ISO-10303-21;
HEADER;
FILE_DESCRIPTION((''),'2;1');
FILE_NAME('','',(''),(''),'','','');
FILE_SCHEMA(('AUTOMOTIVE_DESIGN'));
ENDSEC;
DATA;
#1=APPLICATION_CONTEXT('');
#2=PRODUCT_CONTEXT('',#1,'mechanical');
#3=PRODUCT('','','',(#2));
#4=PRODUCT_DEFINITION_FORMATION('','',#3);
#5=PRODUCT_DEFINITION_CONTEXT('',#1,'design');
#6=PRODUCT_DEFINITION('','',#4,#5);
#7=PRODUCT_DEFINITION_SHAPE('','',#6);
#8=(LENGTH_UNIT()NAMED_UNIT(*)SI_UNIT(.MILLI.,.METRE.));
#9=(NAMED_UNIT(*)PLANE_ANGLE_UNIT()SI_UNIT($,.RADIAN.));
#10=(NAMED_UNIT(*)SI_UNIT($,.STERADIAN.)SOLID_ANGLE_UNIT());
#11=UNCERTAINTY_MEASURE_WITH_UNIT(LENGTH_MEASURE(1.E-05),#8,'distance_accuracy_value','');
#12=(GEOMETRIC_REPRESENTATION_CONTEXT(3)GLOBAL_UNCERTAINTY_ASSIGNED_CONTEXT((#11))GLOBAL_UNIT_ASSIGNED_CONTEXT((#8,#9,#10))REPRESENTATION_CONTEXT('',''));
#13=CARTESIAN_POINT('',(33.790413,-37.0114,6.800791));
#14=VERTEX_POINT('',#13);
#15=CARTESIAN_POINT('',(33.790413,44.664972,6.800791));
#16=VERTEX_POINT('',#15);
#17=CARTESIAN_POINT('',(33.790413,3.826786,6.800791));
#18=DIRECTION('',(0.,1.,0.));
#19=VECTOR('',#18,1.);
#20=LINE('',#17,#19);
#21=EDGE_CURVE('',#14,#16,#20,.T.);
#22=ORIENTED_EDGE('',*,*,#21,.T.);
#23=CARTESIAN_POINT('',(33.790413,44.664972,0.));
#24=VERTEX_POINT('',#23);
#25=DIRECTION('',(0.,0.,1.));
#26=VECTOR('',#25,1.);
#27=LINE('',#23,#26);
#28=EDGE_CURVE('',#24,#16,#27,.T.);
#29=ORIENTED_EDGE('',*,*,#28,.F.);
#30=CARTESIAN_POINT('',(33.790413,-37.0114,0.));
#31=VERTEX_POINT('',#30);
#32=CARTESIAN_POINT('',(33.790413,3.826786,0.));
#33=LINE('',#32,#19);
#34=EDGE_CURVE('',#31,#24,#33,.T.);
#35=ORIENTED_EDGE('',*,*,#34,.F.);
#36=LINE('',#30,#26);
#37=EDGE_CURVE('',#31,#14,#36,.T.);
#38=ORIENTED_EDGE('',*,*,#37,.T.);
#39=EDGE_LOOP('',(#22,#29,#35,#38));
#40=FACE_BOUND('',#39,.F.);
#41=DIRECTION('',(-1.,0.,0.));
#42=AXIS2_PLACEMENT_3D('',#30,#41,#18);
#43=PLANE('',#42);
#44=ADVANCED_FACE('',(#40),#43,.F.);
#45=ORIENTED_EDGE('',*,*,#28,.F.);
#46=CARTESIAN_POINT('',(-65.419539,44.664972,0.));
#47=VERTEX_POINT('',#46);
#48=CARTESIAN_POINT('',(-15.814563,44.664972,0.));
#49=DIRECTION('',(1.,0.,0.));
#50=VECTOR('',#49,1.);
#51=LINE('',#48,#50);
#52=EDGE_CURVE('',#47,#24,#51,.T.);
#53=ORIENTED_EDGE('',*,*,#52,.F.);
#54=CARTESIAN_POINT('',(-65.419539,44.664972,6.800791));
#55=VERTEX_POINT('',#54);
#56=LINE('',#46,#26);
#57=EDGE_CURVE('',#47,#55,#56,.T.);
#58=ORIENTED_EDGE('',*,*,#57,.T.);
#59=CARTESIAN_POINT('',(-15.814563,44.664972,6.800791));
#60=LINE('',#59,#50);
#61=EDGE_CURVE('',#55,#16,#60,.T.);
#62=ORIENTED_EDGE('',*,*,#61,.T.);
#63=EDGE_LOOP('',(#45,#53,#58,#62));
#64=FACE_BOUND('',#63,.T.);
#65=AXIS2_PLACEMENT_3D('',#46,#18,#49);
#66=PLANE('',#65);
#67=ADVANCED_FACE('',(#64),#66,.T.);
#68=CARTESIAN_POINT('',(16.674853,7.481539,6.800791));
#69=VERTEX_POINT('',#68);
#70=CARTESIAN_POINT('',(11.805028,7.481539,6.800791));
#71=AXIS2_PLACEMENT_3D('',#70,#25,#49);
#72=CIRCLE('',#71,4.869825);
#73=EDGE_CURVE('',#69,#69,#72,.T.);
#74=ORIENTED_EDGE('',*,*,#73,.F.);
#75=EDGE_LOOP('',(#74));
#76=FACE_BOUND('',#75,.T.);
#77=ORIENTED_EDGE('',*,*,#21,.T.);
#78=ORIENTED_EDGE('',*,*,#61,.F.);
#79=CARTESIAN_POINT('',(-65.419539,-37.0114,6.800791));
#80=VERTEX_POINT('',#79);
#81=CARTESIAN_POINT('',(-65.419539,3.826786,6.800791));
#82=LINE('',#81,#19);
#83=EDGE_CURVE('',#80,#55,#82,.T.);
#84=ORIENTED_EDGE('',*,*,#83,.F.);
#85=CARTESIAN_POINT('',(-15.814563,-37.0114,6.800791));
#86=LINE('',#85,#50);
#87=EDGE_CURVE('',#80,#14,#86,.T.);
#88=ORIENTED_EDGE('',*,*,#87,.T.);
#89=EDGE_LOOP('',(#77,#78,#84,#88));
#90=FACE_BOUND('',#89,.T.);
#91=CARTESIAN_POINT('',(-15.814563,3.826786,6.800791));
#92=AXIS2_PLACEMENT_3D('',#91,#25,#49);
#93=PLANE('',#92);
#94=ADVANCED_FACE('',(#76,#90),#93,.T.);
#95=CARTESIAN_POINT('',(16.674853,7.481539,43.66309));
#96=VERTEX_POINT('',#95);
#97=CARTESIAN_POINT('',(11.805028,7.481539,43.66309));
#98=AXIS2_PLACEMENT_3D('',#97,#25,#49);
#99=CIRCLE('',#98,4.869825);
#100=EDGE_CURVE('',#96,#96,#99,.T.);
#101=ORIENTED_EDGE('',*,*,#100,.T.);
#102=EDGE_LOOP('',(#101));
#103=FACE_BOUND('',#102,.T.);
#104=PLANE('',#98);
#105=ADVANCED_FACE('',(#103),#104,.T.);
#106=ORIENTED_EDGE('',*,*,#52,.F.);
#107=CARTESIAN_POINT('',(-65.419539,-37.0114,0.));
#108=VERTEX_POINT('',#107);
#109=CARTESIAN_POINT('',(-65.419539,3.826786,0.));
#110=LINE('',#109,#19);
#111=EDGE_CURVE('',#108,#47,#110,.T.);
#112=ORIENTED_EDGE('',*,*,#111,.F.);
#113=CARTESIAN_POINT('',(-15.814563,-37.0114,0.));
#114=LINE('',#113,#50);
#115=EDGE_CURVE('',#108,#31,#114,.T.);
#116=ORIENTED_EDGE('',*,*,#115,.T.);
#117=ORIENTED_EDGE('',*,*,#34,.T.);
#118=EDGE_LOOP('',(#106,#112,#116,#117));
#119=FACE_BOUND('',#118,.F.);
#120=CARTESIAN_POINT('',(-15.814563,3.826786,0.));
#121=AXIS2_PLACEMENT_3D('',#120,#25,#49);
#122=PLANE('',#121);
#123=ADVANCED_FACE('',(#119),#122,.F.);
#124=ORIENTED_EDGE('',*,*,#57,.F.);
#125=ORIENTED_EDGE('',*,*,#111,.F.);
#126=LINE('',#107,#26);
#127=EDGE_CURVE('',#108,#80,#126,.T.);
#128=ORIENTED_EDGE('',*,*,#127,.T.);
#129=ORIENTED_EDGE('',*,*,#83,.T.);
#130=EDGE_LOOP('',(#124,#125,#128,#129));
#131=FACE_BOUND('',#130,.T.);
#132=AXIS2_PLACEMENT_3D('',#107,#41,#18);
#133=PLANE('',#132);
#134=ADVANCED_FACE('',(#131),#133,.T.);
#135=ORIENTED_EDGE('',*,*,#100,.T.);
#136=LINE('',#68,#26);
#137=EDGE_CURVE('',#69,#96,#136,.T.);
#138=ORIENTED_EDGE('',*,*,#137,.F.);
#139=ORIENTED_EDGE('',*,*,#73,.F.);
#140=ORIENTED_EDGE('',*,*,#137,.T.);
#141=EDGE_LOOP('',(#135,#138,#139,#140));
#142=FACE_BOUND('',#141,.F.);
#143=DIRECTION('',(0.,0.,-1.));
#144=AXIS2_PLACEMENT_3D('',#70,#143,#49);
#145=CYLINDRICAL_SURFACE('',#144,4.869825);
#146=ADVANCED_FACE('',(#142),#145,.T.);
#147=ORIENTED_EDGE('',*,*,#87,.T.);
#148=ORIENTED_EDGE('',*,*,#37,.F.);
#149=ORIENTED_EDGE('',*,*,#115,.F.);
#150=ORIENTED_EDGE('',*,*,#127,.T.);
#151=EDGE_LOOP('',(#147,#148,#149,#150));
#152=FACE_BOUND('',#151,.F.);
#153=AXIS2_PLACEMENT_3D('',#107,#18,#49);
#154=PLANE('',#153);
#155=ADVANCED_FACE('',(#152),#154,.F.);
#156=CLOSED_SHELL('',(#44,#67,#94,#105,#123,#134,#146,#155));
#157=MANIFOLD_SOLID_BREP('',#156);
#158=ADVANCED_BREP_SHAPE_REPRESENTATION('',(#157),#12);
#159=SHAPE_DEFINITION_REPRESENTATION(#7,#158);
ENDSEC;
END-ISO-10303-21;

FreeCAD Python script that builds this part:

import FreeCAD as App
import Part
import Sketcher
from FreeCAD import Vector
Q = App.Units.Quantity

doc = App.newDocument("Part")
body = doc.addObject("PartDesign::Body", "Body")

# Sketch on XY plane
sketch1 = doc.addObject("Sketcher::SketchObject", "Sketch")
body.addObject(sketch1)
sketch1.AttachmentSupport = (doc.XY_Plane, [""])
sketch1.MapMode = "FlatFace"
sketch1.addGeometry(Part.LineSegment(Vector(-65, 45, 0), Vector(-65, -37, 0)), False)
sketch1.addGeometry(Part.LineSegment(Vector(-65, -37, 0), Vector(34, -37, 0)), False)
sketch1.addGeometry(Part.LineSegment(Vector(34, -37, 0), Vector(34, 45, 0)), False)
sketch1.addGeometry(Part.LineSegment(Vector(34, 45, 0), Vector(-65, 45, 0)), False)
sketch1.addConstraint(Sketcher.Constraint("Coincident", 0, 2, 1, 1))
sketch1.addConstraint(Sketcher.Constraint("Coincident", 1, 2, 2, 1))
sketch1.addConstraint(Sketcher.Constraint("Coincident", 2, 2, 3, 1))
sketch1.addConstraint(Sketcher.Constraint("Coincident", 3, 2, 0, 1))
sketch1.addConstraint(Sketcher.Constraint("Vertical", 0))
sketch1.addConstraint(Sketcher.Constraint("Horizontal", 1))
sketch1.addConstraint(Sketcher.Constraint("Vertical", 2))
sketch1.addConstraint(Sketcher.Constraint("Horizontal", 3))
sketch1.addConstraint(Sketcher.Constraint("DistanceY", 0, 2, 0, 1, Q("81.676372 mm")))
sketch1.addConstraint(Sketcher.Constraint("DistanceY", 0, 2, -1, 1, Q("37.0114 mm")))
sketch1.addConstraint(Sketcher.Constraint("DistanceX", 1, 1, 1, 2, Q("99.209953 mm")))
sketch1.addConstraint(Sketcher.Constraint("DistanceX", 0, 2, -1, 1, Q("65.419539 mm")))
pad1 = doc.addObject("PartDesign::Pad", "Pad")
body.addObject(pad1)
pad1.Profile = sketch1
pad1.Length = 6.800791

# Sketch on XY plane
sketch2 = doc.addObject("Sketcher::SketchObject", "Sketch001")
body.addObject(sketch2)
sketch2.AttachmentSupport = (doc.XY_Plane, [""])
sketch2.MapMode = "FlatFace"
sketch2.AttachmentOffset = App.Placement(Vector(0, 0, 6.800791), App.Rotation())
sketch2.addGeometry(Part.Circle(Vector(11.8, 7.5, 0), Vector(0, 0, 1), 4.9), False)
sketch2.addConstraint(Sketcher.Constraint("Diameter", 0, Q("9.73965 mm")))
sketch2.addConstraint(Sketcher.Constraint("DistanceY", -1, 1, 0, 3, Q("7.481539 mm")))
sketch2.addConstraint(Sketcher.Constraint("DistanceX", -1, 1, 0, 3, Q("11.805028 mm")))
pad2 = doc.addObject("PartDesign::Pad", "Pad001")
body.addObject(pad2)
pad2.Profile = sketch2
pad2.Length = 36.862299

doc.recompute()
